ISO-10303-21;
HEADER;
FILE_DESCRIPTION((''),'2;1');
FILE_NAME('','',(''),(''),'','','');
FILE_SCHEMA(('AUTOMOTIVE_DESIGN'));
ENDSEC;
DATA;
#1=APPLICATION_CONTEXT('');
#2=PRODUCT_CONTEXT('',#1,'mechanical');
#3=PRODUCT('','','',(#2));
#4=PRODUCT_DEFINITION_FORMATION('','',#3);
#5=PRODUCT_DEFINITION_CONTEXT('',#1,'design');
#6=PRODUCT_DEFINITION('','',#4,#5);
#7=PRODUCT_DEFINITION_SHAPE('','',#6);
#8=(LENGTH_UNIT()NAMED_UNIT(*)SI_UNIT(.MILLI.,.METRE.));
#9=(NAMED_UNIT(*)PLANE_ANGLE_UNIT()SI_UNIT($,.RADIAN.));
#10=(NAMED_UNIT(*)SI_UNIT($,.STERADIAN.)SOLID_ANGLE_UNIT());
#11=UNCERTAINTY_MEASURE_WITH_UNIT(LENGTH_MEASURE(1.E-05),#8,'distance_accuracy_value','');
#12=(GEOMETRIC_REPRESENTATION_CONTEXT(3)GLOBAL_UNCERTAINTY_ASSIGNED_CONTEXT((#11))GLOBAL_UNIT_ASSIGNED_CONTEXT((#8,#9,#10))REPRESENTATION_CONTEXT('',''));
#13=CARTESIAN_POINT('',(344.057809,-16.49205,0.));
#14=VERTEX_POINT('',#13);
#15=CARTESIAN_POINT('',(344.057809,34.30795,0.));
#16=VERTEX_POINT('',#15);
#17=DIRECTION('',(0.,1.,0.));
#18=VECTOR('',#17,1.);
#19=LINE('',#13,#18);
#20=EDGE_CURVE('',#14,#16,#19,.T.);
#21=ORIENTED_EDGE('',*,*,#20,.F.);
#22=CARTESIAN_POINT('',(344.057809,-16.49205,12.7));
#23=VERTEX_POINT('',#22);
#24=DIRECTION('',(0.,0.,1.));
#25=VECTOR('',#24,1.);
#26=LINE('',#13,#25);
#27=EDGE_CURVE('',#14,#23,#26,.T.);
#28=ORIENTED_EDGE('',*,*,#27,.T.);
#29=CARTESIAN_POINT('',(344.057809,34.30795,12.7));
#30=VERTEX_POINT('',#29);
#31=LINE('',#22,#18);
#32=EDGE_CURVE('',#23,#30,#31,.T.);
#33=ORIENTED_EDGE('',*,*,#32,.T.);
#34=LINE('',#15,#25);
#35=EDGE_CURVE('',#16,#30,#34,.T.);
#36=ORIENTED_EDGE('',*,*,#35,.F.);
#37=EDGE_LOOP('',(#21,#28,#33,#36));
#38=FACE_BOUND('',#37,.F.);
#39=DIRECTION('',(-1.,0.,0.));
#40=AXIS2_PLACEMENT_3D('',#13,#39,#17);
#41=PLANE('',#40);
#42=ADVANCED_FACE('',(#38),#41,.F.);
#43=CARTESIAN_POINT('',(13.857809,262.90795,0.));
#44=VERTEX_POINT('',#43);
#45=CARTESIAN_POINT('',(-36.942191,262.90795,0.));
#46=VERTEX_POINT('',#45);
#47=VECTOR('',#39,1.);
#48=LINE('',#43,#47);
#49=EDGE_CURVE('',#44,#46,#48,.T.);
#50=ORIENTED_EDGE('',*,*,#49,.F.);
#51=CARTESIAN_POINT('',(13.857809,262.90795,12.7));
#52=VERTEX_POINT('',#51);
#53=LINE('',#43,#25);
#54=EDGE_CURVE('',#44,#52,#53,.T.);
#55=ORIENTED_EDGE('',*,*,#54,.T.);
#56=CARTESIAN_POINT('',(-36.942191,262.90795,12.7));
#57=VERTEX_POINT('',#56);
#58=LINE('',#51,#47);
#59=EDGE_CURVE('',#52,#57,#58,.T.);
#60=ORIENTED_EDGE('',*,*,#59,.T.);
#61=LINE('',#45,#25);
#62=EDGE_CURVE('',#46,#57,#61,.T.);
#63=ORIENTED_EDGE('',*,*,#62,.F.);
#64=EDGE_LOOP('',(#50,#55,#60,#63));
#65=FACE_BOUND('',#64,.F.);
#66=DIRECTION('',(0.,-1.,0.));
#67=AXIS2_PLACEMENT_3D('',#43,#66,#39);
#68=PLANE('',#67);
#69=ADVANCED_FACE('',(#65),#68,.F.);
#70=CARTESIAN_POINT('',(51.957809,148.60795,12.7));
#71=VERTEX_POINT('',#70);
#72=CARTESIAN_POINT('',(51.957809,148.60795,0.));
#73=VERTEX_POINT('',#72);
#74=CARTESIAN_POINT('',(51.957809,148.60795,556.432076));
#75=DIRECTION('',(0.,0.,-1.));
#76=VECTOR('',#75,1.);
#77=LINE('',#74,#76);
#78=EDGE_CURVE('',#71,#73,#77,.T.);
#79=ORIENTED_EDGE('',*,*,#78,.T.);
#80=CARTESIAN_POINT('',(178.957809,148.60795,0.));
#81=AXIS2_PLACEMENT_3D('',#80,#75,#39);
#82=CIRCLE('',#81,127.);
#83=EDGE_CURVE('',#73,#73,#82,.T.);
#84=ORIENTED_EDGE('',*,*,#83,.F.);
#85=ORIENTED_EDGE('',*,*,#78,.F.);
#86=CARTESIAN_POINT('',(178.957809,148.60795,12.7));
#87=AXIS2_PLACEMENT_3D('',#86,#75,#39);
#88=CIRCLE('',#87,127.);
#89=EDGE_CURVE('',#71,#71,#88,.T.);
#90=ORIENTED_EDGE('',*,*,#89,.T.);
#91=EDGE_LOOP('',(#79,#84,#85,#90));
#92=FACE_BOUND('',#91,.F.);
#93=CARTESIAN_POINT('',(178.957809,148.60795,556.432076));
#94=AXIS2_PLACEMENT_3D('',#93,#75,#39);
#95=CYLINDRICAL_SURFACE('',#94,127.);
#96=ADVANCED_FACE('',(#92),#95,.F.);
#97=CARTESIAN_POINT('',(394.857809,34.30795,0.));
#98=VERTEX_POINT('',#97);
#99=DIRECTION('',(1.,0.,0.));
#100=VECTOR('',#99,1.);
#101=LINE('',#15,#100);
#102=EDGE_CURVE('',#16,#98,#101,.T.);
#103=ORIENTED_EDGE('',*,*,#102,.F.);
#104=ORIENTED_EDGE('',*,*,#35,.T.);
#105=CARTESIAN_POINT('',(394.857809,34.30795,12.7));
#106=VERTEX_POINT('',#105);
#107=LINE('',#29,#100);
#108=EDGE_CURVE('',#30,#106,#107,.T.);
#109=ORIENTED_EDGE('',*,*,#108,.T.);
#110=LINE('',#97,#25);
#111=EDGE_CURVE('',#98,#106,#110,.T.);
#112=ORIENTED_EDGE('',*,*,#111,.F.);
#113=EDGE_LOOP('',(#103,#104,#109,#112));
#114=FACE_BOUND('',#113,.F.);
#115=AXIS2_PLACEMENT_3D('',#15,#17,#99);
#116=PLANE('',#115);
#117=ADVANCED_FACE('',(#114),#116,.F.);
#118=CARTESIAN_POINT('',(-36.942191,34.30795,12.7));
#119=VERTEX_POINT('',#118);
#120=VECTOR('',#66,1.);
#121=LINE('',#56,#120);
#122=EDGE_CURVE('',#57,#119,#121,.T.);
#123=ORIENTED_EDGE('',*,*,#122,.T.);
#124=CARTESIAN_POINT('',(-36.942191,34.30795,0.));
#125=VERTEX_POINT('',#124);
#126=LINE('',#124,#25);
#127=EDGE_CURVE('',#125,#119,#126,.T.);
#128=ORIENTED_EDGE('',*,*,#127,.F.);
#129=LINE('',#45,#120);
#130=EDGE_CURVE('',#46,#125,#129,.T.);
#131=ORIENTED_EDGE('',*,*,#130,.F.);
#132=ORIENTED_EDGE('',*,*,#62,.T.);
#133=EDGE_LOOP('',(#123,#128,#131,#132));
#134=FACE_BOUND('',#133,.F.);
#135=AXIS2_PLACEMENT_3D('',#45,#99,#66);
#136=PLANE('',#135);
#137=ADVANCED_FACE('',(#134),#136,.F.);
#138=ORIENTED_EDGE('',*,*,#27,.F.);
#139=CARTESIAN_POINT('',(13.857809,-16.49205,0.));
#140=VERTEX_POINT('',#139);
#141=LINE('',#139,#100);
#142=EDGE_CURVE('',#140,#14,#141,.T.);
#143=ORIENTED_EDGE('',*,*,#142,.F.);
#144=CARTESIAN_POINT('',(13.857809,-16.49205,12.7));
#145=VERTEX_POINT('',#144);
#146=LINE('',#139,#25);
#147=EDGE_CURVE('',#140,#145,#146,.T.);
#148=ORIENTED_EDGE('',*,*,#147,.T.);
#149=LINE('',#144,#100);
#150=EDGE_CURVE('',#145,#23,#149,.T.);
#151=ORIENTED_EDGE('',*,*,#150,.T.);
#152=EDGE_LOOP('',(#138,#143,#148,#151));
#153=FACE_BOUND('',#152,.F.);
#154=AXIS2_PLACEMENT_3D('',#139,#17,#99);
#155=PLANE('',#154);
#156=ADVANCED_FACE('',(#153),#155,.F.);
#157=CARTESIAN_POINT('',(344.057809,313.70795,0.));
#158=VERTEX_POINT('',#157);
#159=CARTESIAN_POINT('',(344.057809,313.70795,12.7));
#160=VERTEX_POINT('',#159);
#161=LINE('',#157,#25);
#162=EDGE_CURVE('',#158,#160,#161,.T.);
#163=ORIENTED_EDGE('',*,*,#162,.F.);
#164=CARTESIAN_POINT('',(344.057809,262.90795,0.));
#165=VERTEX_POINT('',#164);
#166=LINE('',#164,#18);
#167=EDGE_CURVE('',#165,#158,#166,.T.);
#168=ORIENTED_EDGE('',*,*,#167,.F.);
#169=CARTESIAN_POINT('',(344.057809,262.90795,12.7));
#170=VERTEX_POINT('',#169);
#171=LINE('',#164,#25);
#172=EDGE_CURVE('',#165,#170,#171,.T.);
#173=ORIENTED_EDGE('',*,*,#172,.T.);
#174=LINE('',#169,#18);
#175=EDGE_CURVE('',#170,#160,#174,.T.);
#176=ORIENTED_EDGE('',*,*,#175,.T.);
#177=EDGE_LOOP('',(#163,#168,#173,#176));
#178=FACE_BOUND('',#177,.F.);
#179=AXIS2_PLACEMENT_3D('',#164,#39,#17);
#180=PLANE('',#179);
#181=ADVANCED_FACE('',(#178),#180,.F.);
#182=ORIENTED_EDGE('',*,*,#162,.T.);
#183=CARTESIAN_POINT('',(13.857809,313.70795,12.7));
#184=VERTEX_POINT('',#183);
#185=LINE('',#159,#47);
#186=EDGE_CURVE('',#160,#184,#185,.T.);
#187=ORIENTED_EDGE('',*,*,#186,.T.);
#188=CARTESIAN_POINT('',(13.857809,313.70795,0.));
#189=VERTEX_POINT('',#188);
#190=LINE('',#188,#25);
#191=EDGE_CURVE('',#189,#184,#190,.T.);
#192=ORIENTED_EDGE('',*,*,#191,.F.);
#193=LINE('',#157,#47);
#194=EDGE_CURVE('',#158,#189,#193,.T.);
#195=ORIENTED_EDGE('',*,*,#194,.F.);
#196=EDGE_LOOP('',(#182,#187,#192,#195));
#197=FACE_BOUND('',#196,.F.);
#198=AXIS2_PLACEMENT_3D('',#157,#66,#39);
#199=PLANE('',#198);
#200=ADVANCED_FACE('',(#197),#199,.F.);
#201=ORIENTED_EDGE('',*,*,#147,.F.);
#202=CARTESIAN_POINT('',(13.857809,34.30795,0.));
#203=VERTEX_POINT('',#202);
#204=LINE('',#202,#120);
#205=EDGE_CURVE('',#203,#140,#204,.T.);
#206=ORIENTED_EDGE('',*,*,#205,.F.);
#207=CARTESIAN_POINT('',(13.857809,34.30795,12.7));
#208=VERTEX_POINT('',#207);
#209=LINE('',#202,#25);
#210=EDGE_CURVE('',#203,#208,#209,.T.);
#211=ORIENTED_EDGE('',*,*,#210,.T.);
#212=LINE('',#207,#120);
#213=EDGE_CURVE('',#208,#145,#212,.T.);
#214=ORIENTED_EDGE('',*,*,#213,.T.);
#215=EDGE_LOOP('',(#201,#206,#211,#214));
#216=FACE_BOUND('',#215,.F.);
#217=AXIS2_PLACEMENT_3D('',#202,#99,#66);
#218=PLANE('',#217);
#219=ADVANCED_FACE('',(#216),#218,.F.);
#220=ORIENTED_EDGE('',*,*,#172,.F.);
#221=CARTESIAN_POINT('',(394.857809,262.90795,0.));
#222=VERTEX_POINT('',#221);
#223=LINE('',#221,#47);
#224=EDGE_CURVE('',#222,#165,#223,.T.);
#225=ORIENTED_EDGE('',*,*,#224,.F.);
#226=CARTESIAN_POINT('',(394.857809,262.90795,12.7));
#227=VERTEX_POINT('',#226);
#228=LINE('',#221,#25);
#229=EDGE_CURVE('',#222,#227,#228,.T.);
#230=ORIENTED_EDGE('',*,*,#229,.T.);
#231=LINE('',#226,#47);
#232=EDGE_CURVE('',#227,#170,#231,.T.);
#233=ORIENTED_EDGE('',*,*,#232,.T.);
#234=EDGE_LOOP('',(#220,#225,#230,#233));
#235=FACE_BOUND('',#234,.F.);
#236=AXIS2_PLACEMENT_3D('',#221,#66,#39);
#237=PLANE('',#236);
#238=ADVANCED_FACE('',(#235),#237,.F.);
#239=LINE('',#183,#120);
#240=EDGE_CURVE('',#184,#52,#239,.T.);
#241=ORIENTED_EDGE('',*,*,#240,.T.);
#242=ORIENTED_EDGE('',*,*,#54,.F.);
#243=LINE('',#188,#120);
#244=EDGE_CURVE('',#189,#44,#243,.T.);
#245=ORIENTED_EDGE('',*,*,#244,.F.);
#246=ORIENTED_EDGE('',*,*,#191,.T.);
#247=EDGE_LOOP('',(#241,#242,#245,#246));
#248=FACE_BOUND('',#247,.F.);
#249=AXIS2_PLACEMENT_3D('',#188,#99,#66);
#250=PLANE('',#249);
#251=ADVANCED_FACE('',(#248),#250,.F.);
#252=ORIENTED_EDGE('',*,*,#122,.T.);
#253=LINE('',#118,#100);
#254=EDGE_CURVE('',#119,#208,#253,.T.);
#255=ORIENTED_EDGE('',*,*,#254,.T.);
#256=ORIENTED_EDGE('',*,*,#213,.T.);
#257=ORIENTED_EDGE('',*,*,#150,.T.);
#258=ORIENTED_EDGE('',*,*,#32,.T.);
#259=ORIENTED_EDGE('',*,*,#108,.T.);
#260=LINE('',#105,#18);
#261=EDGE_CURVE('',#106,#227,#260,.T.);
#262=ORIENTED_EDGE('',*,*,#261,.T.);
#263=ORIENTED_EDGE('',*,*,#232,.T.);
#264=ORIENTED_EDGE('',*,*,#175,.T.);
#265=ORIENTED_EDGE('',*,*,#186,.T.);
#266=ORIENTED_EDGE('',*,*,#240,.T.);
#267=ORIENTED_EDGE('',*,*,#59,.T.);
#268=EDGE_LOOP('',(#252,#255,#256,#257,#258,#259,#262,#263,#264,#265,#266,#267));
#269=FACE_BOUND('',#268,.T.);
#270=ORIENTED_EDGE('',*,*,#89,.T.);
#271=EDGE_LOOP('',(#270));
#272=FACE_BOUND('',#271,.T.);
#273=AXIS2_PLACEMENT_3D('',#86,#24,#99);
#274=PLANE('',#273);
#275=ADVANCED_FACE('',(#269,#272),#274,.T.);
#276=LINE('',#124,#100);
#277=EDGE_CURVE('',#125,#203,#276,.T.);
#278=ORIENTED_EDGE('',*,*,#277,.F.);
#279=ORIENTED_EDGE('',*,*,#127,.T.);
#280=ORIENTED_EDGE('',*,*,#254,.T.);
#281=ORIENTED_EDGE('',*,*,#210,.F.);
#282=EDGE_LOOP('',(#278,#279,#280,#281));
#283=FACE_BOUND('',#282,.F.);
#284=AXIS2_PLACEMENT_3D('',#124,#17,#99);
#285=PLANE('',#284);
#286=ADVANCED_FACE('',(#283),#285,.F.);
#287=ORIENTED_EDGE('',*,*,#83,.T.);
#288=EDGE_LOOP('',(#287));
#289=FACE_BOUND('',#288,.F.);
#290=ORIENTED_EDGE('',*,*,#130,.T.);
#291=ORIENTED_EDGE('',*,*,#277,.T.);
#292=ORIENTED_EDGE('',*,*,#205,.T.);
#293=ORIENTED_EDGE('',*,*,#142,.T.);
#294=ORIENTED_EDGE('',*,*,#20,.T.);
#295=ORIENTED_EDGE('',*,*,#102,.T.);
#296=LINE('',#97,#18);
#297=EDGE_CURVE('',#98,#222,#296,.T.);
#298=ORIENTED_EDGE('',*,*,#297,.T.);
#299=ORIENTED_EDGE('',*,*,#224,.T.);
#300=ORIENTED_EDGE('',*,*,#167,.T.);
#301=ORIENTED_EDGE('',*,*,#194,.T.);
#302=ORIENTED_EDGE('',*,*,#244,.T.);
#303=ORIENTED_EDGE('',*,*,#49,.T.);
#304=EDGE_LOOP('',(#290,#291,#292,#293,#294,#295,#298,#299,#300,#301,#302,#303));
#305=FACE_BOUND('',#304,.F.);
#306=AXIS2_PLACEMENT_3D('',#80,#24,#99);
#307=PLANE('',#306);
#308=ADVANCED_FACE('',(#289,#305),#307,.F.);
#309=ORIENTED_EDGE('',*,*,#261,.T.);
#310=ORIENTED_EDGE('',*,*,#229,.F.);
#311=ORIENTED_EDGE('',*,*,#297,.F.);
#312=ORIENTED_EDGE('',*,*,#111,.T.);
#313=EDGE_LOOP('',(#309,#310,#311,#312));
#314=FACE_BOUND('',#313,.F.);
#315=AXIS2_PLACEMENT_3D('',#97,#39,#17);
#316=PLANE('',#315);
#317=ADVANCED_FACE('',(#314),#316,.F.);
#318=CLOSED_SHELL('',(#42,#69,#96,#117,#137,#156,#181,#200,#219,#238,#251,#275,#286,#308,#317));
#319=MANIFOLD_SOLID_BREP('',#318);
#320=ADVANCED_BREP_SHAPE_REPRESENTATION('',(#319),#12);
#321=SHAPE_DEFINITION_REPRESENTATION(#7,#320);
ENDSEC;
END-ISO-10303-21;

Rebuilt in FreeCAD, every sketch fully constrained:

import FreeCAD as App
import Part
import Sketcher
Q = App.Units.Quantity


def add_polygon(sketch, points):
    """Adds a closed chain of lines whose ends are joined by coincident constraints."""
    first, n = sketch.GeometryCount, len(points)
    for a, b in zip(points, points[1:] + points[:1]):
        sketch.addGeometry(Part.LineSegment(App.Vector(*a, 0), App.Vector(*b, 0)), False)
    for i in range(n):
        sketch.addConstraint(Sketcher.Constraint("Coincident", first + i, 2, first + (i + 1) % n, 1))

doc = App.newDocument("Part")
body = doc.addObject("PartDesign::Body", "Body")

sketch1 = body.newObject("Sketcher::SketchObject", "Sketch")
sketch1.AttachmentSupport = (doc.getObject("XY_Plane"), [""])
sketch1.MapMode = "FlatFace"
add_polygon(sketch1, [(344, 314), (14, 314), (14, 263), (-37, 263), (-37, 34), (14, 34), (14, -16), (344, -16), (344, 34), (395, 34), (395, 263), (344, 263)])
sketch1.addConstraint(Sketcher.Constraint("Horizontal", 0))
sketch1.addConstraint(Sketcher.Constraint("Vertical", 1))
sketch1.addConstraint(Sketcher.Constraint("Horizontal", 2))
sketch1.addConstraint(Sketcher.Constraint("Vertical", 3))
sketch1.addConstraint(Sketcher.Constraint("Horizontal", 4))
sketch1.addConstraint(Sketcher.Constraint("Vertical", 5))
sketch1.addConstraint(Sketcher.Constraint("Horizontal", 6))
sketch1.addConstraint(Sketcher.Constraint("Vertical", 7))
sketch1.addConstraint(Sketcher.Constraint("Horizontal", 8))
sketch1.addConstraint(Sketcher.Constraint("Vertical", 9))
sketch1.addConstraint(Sketcher.Constraint("Horizontal", 10))
sketch1.addConstraint(Sketcher.Constraint("Vertical", 11))
sketch1.addConstraint(Sketcher.Constraint("Horizontal", 4, 2, 7, 2))
sketch1.addConstraint(Sketcher.Constraint("Horizontal", 2, 2, 9, 2))
sketch1.addConstraint(Sketcher.Constraint("Vertical", 1, 2, 4, 2))
sketch1.addConstraint(Sketcher.Constraint("Vertical", 7, 2, 10, 2))
sketch1.addConstraint(Sketcher.Constraint("Equal", 4, 8))
sketch1.addConstraint(Sketcher.Constraint("Equal", 10, 1))
sketch1.addConstraint(Sketcher.Constraint("Equal", 1, 5))
sketch1.addConstraint(Sketcher.Constraint("DistanceX", 0, 2, 0, 1, Q("13 in")))
sketch1.addConstraint(Sketcher.Constraint("DistanceX", 2, 2, 2, 1, Q("2 in")))
sketch1.addConstraint(Sketcher.Constraint("DistanceY", 3, 2, 3, 1, Q("9 in")))
sketch1.addConstraint(Sketcher.Constraint("DistanceX", -1, 1, 0, 2, Q("13.857809 mm")))
sketch1.addConstraint(Sketcher.Constraint("DistanceY", -1, 1, 0, 2, Q("313.70795 mm")))
pad1 = body.newObject("PartDesign::Pad", "Pad")
pad1.Profile = sketch1
pad1.Length = Q("0.5 in")

sketch2 = body.newObject("Sketcher::SketchObject", "Sketch001")
sketch2.AttachmentSupport = (doc.getObject("XY_Plane"), [""])
sketch2.MapMode = "FlatFace"
sketch2.AttachmentOffset = App.Placement(App.Vector(0, 0, 0.5 * 25.4), App.Rotation())
sketch2.addGeometry(Part.Circle(App.Vector(179, 149, 0), App.Vector(0, 0, 1), 127), False)
sketch2.addConstraint(Sketcher.Constraint("Diameter", 0, Q("10 in")))
sketch2.addConstraint(Sketcher.Constraint("DistanceX", -1, 1, 0, 3, Q("178.957809 mm")))
sketch2.addConstraint(Sketcher.Constraint("DistanceY", -1, 1, 0, 3, Q("148.60795 mm")))
doc.recompute()
hole = body.newObject("PartDesign::Hole", "Hole")
hole.Profile = sketch2
hole.ThreadType = "None"
hole.Diameter = Q("10 in")
hole.DepthType = "ThroughAll"

doc.recompute()
